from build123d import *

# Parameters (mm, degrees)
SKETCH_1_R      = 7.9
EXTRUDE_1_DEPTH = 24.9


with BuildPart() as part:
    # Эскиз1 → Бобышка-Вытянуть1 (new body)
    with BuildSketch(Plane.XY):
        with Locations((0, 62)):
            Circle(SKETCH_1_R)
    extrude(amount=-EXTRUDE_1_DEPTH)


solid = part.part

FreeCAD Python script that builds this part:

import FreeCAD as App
import Part
import Sketcher
from FreeCAD import Vector

doc = App.newDocument("Part")
body = doc.addObject("PartDesign::Body", "Body")

# Sketch on XY plane
sketch1 = doc.addObject("Sketcher::SketchObject", "Sketch")
body.addObject(sketch1)
sketch1.AttachmentSupport = (doc.XY_Plane, [""])
sketch1.MapMode = "FlatFace"
sketch1.addGeometry(Part.Circle(Vector(0, 62, 0), Vector(0, 0, 1), 7.9), False)
sketch1.addConstraint(Sketcher.Constraint("PointOnObject", 0, 3, -2))
sketch1.addConstraint(Sketcher.Constraint("Diameter", 0, 15.8))
sketch1.addConstraint(Sketcher.Constraint("DistanceY", -1, 1, 0, 3, 62.0))
pad1 = doc.addObject("PartDesign::Pad", "Pad")
body.addObject(pad1)
pad1.Profile = sketch1
pad1.Length = 24.9
pad1.Reversed = True

doc.recompute()
